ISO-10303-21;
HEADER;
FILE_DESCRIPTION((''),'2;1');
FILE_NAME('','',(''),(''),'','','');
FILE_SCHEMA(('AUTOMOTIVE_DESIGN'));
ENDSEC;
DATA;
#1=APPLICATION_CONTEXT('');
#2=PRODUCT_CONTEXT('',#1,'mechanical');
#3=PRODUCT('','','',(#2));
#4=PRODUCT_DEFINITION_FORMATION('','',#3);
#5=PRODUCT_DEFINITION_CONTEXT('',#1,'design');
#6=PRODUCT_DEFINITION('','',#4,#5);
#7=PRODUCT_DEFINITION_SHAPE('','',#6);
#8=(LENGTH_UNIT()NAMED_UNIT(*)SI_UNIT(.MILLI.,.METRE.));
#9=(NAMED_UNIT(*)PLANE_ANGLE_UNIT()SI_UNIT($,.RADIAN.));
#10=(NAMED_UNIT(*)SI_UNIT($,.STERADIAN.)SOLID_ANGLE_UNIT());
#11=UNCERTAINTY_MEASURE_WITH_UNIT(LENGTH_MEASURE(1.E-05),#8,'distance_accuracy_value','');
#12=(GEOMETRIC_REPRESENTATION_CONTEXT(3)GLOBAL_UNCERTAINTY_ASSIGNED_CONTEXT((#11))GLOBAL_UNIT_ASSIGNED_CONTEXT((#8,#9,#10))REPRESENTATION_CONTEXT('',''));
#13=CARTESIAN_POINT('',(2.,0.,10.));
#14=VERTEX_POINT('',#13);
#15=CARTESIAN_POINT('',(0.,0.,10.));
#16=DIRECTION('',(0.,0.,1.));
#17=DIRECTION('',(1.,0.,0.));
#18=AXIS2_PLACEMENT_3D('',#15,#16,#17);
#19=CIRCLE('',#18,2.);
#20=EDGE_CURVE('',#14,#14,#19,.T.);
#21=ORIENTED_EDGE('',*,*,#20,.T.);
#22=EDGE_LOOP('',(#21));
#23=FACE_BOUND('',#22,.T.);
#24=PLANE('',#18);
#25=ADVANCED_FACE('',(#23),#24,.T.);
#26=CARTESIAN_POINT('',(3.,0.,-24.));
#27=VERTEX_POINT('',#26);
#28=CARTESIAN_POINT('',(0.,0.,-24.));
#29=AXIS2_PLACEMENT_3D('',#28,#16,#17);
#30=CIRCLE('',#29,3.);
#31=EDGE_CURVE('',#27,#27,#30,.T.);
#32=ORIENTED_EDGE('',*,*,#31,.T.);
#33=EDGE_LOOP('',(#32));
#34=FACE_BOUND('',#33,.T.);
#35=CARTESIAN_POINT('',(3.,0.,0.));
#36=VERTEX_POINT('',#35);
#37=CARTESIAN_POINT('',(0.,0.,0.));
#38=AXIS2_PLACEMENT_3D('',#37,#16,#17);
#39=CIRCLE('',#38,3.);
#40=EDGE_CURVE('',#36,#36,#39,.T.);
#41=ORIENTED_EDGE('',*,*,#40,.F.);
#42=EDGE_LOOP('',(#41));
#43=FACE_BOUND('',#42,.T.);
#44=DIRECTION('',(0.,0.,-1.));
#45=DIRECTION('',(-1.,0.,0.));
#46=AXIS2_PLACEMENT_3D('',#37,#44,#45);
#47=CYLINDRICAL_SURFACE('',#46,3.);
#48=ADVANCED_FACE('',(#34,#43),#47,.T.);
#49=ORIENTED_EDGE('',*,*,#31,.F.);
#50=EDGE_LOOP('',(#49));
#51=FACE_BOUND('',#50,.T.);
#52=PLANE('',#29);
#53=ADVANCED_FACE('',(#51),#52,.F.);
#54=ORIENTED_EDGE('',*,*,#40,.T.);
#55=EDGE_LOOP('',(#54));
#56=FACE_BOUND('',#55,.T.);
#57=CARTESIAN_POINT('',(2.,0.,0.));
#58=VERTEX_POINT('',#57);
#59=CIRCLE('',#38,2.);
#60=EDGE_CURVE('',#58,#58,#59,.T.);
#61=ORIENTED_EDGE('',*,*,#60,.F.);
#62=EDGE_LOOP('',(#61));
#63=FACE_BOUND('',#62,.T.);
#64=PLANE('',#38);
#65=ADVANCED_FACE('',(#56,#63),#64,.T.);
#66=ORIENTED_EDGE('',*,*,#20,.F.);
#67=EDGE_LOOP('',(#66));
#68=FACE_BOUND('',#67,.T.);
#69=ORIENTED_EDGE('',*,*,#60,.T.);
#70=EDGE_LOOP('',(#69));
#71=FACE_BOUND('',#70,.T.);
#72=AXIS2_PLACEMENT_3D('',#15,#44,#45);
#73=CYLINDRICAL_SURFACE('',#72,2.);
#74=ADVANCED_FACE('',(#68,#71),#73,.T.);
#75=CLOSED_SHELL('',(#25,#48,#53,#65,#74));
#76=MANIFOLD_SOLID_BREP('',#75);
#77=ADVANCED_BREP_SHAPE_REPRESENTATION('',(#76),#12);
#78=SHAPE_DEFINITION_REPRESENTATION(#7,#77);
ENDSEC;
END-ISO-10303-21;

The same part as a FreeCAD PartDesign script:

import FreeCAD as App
import Part
import Sketcher
from FreeCAD import Vector
Q = App.Units.Quantity

doc = App.newDocument("Part")
body = doc.addObject("PartDesign::Body", "Body")

# Sketch on XY plane
sketch1 = doc.addObject("Sketcher::SketchObject", "Sketch")
body.addObject(sketch1)
sketch1.AttachmentSupport = (doc.XY_Plane, [""])
sketch1.MapMode = "FlatFace"
sketch1.AttachmentOffset = App.Placement(Vector(0, 0, -24), App.Rotation())
sketch1.addGeometry(Part.Circle(Vector(0, 0, 0), Vector(0, 0, 1), 3), False)
sketch1.addConstraint([
    Sketcher.Constraint("Coincident", 0, 3, -1, 1),
    Sketcher.Constraint("Diameter", 0, Q("6 mm")),
])
pad1 = doc.addObject("PartDesign::Pad", "Pad")
body.addObject(pad1)
pad1.Profile = sketch1
pad1.Length = 24

# Sketch on XY plane
sketch2 = doc.addObject("Sketcher::SketchObject", "Sketch001")
body.addObject(sketch2)
sketch2.AttachmentSupport = (doc.XY_Plane, [""])
sketch2.MapMode = "FlatFace"
sketch2.addGeometry(Part.Circle(Vector(0, 0, 0), Vector(0, 0, 1), 2), False)
sketch2.addConstraint([
    Sketcher.Constraint("Coincident", 0, 3, -1, 1),
    Sketcher.Constraint("Diameter", 0, Q("4 mm")),
])
pad2 = doc.addObject("PartDesign::Pad", "Pad001")
body.addObject(pad2)
pad2.Profile = sketch2
pad2.Length = 10

doc.recompute()
